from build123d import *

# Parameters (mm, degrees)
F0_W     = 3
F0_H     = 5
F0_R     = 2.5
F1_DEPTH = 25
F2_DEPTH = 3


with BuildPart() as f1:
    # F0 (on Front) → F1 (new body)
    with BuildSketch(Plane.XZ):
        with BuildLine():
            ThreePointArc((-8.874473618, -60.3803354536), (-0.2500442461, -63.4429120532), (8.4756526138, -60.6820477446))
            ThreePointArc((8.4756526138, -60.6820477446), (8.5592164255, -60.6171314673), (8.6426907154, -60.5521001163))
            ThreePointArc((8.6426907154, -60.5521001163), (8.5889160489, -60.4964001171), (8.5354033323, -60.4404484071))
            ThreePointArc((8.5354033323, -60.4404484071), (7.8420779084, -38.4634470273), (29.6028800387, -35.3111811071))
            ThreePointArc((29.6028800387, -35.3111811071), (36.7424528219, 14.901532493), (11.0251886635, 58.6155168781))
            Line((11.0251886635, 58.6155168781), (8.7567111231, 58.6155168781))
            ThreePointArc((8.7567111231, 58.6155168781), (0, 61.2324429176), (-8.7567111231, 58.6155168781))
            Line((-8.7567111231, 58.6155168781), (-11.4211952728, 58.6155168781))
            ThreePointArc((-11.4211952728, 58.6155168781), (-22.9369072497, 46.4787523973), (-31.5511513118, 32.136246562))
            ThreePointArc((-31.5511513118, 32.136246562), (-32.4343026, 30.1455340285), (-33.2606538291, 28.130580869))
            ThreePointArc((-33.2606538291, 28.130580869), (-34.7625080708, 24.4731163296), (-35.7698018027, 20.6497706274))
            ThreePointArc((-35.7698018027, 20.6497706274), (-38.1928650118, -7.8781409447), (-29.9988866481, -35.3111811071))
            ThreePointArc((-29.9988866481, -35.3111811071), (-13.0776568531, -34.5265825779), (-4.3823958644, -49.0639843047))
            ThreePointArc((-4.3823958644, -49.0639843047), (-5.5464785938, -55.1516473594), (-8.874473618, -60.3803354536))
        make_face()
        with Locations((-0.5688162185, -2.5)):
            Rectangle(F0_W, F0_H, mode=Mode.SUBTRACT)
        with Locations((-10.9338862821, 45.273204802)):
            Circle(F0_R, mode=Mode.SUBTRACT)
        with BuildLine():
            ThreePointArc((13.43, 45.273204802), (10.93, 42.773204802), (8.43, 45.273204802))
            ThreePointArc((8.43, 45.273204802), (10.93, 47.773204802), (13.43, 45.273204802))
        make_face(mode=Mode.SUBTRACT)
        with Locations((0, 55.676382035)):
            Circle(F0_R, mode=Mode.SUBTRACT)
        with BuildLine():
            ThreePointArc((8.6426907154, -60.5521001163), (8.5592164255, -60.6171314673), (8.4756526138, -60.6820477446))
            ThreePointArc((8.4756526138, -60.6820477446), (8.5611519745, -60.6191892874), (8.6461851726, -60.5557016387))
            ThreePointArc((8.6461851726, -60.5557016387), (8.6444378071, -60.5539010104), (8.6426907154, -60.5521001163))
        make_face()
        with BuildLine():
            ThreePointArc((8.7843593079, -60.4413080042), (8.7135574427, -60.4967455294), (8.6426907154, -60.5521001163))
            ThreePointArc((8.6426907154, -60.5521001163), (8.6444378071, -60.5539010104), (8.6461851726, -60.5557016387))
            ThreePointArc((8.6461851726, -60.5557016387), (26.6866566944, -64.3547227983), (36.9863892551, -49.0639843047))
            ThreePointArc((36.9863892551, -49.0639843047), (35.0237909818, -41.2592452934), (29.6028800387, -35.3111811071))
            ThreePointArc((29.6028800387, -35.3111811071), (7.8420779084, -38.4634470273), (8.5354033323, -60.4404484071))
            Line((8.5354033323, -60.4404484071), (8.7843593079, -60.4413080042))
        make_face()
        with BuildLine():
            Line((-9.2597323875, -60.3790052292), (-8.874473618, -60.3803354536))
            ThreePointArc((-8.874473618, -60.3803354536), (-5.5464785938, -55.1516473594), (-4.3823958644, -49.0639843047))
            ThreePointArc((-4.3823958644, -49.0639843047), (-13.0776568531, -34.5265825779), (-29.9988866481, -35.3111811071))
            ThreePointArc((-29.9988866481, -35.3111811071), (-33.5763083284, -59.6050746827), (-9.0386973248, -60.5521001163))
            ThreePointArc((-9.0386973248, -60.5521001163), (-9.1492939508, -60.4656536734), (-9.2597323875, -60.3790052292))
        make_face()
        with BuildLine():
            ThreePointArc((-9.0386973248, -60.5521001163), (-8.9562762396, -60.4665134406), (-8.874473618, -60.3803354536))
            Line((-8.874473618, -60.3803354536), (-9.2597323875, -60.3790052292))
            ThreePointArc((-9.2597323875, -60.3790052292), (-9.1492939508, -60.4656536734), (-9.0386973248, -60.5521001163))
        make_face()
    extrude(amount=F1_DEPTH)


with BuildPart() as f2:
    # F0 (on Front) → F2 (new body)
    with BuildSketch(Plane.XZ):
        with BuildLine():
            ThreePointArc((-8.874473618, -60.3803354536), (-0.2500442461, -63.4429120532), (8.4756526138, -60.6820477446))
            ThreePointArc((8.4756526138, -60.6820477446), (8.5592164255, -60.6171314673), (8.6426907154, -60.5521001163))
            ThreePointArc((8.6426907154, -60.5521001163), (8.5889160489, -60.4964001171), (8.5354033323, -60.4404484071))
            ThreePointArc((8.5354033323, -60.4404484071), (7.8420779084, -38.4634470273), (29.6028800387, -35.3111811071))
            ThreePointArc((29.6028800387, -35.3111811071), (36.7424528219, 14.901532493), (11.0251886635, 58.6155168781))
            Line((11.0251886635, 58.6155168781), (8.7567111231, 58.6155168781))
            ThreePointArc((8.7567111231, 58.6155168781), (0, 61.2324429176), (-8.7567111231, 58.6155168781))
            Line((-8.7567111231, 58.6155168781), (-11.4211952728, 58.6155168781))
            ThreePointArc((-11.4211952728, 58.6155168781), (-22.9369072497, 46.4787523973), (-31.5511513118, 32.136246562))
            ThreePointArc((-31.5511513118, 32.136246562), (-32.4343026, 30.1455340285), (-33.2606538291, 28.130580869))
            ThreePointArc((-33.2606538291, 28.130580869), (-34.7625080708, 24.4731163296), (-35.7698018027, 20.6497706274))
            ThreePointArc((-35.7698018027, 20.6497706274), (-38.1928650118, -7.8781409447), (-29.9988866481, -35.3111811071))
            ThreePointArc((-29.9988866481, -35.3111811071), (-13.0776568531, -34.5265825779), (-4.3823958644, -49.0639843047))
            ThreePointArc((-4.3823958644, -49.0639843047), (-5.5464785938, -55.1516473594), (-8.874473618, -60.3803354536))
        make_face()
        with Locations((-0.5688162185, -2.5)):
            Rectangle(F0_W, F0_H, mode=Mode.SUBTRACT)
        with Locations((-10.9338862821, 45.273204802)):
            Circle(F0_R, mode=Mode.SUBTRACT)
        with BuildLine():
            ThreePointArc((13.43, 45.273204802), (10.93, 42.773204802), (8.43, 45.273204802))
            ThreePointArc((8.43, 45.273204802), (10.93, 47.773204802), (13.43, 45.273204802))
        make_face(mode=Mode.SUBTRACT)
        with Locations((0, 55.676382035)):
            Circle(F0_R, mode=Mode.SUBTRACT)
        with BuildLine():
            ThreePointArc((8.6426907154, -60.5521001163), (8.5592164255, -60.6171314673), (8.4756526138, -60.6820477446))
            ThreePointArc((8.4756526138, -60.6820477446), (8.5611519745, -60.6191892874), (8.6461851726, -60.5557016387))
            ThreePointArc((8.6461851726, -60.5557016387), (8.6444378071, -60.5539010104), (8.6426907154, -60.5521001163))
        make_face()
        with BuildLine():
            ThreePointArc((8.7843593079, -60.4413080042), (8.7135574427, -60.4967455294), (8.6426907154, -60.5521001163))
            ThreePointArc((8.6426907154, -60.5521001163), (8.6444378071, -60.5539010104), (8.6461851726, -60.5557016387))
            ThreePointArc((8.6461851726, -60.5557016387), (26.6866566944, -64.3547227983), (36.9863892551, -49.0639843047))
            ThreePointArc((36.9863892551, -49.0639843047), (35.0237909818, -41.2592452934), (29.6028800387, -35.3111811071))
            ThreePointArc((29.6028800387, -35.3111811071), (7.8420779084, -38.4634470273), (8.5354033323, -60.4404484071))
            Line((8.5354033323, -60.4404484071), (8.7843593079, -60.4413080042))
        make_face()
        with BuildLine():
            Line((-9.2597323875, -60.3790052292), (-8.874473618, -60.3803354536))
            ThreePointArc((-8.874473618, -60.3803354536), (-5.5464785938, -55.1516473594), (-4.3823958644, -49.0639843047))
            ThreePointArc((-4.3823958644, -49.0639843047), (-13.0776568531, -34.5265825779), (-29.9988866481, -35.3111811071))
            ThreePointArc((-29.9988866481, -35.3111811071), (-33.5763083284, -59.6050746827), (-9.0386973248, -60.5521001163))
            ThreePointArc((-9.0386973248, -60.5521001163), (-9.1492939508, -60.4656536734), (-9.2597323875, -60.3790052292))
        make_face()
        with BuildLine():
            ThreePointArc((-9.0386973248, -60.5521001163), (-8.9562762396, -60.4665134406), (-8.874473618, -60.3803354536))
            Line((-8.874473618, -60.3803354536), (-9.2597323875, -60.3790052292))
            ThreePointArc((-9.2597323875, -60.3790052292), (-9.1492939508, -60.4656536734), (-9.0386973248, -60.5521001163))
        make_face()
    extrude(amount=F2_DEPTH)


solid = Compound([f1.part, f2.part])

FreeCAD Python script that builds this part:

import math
import FreeCAD as App
import Part
import Sketcher

V = App.Vector

doc = App.newDocument("Part")
params = doc.addObject("Spreadsheet::Sheet", "Params")
for row, (alias, value) in enumerate([
    ("sketch1_diameter", "5 mm"),
    ("sketch1_radius", "16.5 mm"),
    ("sketch1_radius2", "76.8 mm"),
    ("sketch1_width", "3 mm"),
    ("sketch1_height", "5 mm"),
    ("pad1_length", "25 mm"),
    ("sketch2_diameter", "5 mm"),
    ("sketch2_radius", "16.5 mm"),
    ("sketch2_radius2", "76.8 mm"),
    ("sketch2_width", "3 mm"),
    ("sketch2_height", "5 mm"),
    ("pad2_length", "3 mm"),
], start=1):
    params.set(f"A{row}", alias)
    params.set(f"B{row}", "=" + value)
    params.setAlias(f"B{row}", alias)

body = doc.addObject("PartDesign::Body", "Body")

sketch1 = body.newObject("Sketcher::SketchObject", "Sketch")
sketch1.AttachmentSupport = (doc.getObject("XZ_Plane"), [""])
sketch1.MapMode = "FlatFace"
sketch1.addGeometry([
    Part.ArcOfCircle(Part.Circle(V(0, -49.06, 0), V(0, 0, 1), 14.38), math.radians(-128), math.radians(-54)),
    Part.ArcOfCircle(Part.Circle(V(0, -49.06, 0), V(0, 0, 1), 14.38), math.radians(-53.89), math.radians(-53.04)),
    Part.ArcOfCircle(Part.Circle(V(20.49, -49.06, 0), V(0, 0, 1), 16.5), math.radians(-136), math.radians(0)),
    Part.ArcOfCircle(Part.Circle(V(20.49, -49.06, 0), V(0, 0, 1), 16.5), math.radians(0), math.radians(56)),
    Part.ArcOfCircle(Part.Circle(V(-38.6, 0, 0), V(0, 0, 1), 76.8), math.radians(-27), math.radians(50)),
    Part.LineSegment(V(11.03, 58.62, 0), V(8.76, 58.62, 0)),
    Part.ArcOfCircle(Part.Circle(V(0, 45.27, 0), V(0, 0, 1), 15.96), math.radians(57), math.radians(123)),
    Part.LineSegment(V(-8.76, 58.62, 0), V(-11.42, 58.62, 0)),
    Part.ArcOfCircle(Part.Circle(V(38.2, 0, 0), V(0, 0, 1), 76.8), math.radians(130), math.radians(155)),
    Part.ArcOfCircle(Part.Circle(V(38.2, 0, 0), V(0, 0, 1), 76.8), math.radians(155.26), math.radians(158.51)),
    Part.ArcOfCircle(Part.Circle(V(-6.35, 14.94, 0), V(0, 0, 1), 29.97), math.radians(153.89), math.radians(169.02)),
    Part.ArcOfCircle(Part.Circle(V(38.2, 0, 0), V(0, 0, 1), 76.8), math.radians(164), math.radians(207)),
    Part.ArcOfCircle(Part.Circle(V(-20.88, -49.06, 0), V(0, 0, 1), 16.5), math.radians(124), math.radians(316)),
    Part.ArcOfCircle(Part.Circle(V(-20.88, -49.06, 0), V(0, 0, 1), 16.5), math.radians(-44.13), math.radians(-43.3)),
    Part.ArcOfCircle(Part.Circle(V(20.49, -49.06, 0), V(0, 0, 1), 16.5), math.radians(-136.41), math.radians(-135.87)),
    Part.LineSegment(V(8.54, -60.44, 0), V(8.78, -60.44, 0)),
    Part.ArcOfCircle(Part.Circle(V(-38.6, 0, 0), V(0, 0, 1), 76.8), math.radians(-52.04), math.radians(-51.91)),
    Part.LineSegment(V(0.93, -5, 0), V(-2.07, -5, 0)),
    Part.LineSegment(V(-2.07, -5, 0), V(-2.07, 0, 0)),
    Part.LineSegment(V(-2.07, 0, 0), V(0.93, 0, 0)),
    Part.LineSegment(V(0.93, 0, 0), V(0.93, -5, 0)),
    Part.Circle(V(-10.93, 45.27, 0), V(0, 0, 1), 2.5),
    Part.Circle(V(0, 55.68, 0), V(0, 0, 1), 2.5),
    Part.Circle(V(10.93, 45.27, 0), V(0, 0, 1), 2.5),
], False)
sketch1.addConstraint([
    Sketcher.Constraint("Tangent", 0, 2, 1, 1),
    Sketcher.Constraint("Coincident", 1, 2, 2, 1),
    Sketcher.Constraint("Tangent", 2, 2, 3, 1),
    Sketcher.Constraint("Coincident", 3, 2, 4, 1),
    Sketcher.Constraint("Coincident", 4, 2, 5, 1),
    Sketcher.Constraint("Coincident", 5, 2, 6, 1),
    Sketcher.Constraint("Coincident", 6, 2, 7, 1),
    Sketcher.Constraint("Coincident", 7, 2, 8, 1),
    Sketcher.Constraint("Tangent", 8, 2, 9, 1),
    Sketcher.Constraint("Coincident", 9, 2, 10, 1),
    Sketcher.Constraint("Coincident", 10, 2, 11, 1),
    Sketcher.Constraint("Coincident", 11, 2, 12, 1),
    Sketcher.Constraint("Tangent", 12, 2, 13, 1),
    Sketcher.Constraint("Coincident", 13, 2, 0, 1),
    Sketcher.Constraint("Coincident", 14, 1, 15, 1),
    Sketcher.Constraint("Coincident", 15, 2, 16, 2),
    Sketcher.Constraint("Coincident", 16, 1, 14, 2),
    Sketcher.Constraint("Coincident", 17, 2, 18, 1),
    Sketcher.Constraint("Coincident", 18, 2, 19, 1),
    Sketcher.Constraint("Coincident", 19, 2, 20, 1),
    Sketcher.Constraint("Coincident", 20, 2, 17, 1),
    Sketcher.Constraint("Horizontal", 5),
    Sketcher.Constraint("Horizontal", 7),
    Sketcher.Constraint("Horizontal", 17),
    Sketcher.Constraint("Vertical", 18),
    Sketcher.Constraint("Horizontal", 19),
    Sketcher.Constraint("Vertical", 20),
    Sketcher.Constraint("Coincident", 11, 3, 8, 3),
    Sketcher.Constraint("Coincident", 14, 3, 2, 3),
    Sketcher.Constraint("Equal", 0, 1),
    Sketcher.Constraint("Equal", 2, 3),
    Sketcher.Constraint("Equal", 4, 8),
    Sketcher.Constraint("Equal", 8, 9),
    Sketcher.Constraint("Equal", 9, 11),
    Sketcher.Constraint("Equal", 3, 12),
    Sketcher.Constraint("Equal", 12, 13),
    Sketcher.Constraint("Equal", 13, 14),
    Sketcher.Constraint("Equal", 21, 22),
    Sketcher.Constraint("Equal", 22, 23),
    Sketcher.Constraint("Symmetric", 5, 2, 6, 2, -2),
    Sketcher.Constraint("PointOnObject", 0, 3, -2),
    Sketcher.Constraint("PointOnObject", 4, 3, -1),
    Sketcher.Constraint("PointOnObject", 8, 3, -1),
    Sketcher.Constraint("PointOnObject", 22, 3, -2),
    Sketcher.Constraint("PointOnObject", 18, 2, -1),
    Sketcher.Constraint("Horizontal", 1, 3, 2, 3),
    Sketcher.Constraint("Horizontal", 3, 3, 12, 3),
    Sketcher.Constraint("Horizontal", 6, 3, 21, 3),
    Sketcher.Constraint("Horizontal", 21, 3, 23, 3),
    Sketcher.Constraint("Horizontal", 14, 3, 2, 2),
    Sketcher.Constraint("Horizontal", 3, 2, 11, 2),
    Sketcher.Constraint("Horizontal", 12, 2, 16, 1),
    Sketcher.Constraint("Diameter", 21, 5.0),
    Sketcher.Constraint("Radius", 2, 16.5),
    Sketcher.Constraint("Radius", 4, 76.8),
    Sketcher.Constraint("DistanceX", 17, 2, 17, 1, 3.0),
    Sketcher.Constraint("DistanceY", 18, 1, 18, 2, 5.0),
    Sketcher.Constraint("Radius", 0, 14.381102),
    Sketcher.Constraint("DistanceX", -1, 1, 23, 3, 10.93),
    Sketcher.Constraint("Radius", 6, 15.959238),
    Sketcher.Constraint("Radius", 16, 76.79999),
    Sketcher.Constraint("Radius", 10, 29.968292),
    Sketcher.Constraint("DistanceY", 1, 2, -1, 1, 60.555702),
    Sketcher.Constraint("DistanceX", 10, 2, -1, 1, 35.769802),
    Sketcher.Constraint("DistanceY", 12, 2, -1, 1, 60.5521),
    Sketcher.Constraint("DistanceY", 16, 3, 10, 3, 14.9432),
    Sketcher.Constraint("DistanceX", 16, 3, 12, 3, 17.715601),
    Sketcher.Constraint("DistanceX", 6, 2, 4, 2, 19.7819),
    Sketcher.Constraint("DistanceX", 8, 2, 10, 3, 25.2013),
    Sketcher.Constraint("DistanceX", 4, 3, 10, 2, 2.828202),
    Sketcher.Constraint("DistanceX", 12, 3, 12, 2, 11.843699),
    Sketcher.Constraint("DistanceY", 0, 2, 14, 1, 0.241599),
    Sketcher.Constraint("DistanceX", 5, 2, 5, 1, 2.268478),
    Sketcher.Constraint("DistanceX", 7, 2, 7, 1, 2.664484),
    Sketcher.Constraint("DistanceY", 14, 1, -1, 1, 60.440448),
    Sketcher.Constraint("DistanceX", -1, 1, 15, 2, 8.784359),
    Sketcher.Constraint("DistanceX", 16, 3, 21, 3, 27.664111),
    Sketcher.Constraint("DistanceY", 10, 3, 22, 3, 40.733191),
    Sketcher.Constraint("DistanceX", 16, 3, 17, 2, 36.529181),
])
sketch1.setExpression("Constraints[52]", "Params.sketch1_diameter")
sketch1.setExpression("Constraints[53]", "Params.sketch1_radius")
sketch1.setExpression("Constraints[54]", "Params.sketch1_radius2")
sketch1.setExpression("Constraints[55]", "Params.sketch1_width")
sketch1.setExpression("Constraints[56]", "Params.sketch1_height")
pad1 = body.newObject("PartDesign::Pad", "Pad")
pad1.Profile = sketch1
pad1.setExpression("Length", "Params.pad1_length")
body2 = doc.addObject("PartDesign::Body", "Body001")

sketch2 = body2.newObject("Sketcher::SketchObject", "Sketch001")
sketch2.AttachmentSupport = (doc.getObject("XZ_Plane001"), [""])
sketch2.MapMode = "FlatFace"
sketch2.addGeometry([
    Part.ArcOfCircle(Part.Circle(V(0, -49.06, 0), V(0, 0, 1), 14.38), math.radians(-128), math.radians(-54)),
    Part.ArcOfCircle(Part.Circle(V(0, -49.06, 0), V(0, 0, 1), 14.38), math.radians(-53.89), math.radians(-53.04)),
    Part.ArcOfCircle(Part.Circle(V(20.49, -49.06, 0), V(0, 0, 1), 16.5), math.radians(-136), math.radians(0)),
    Part.ArcOfCircle(Part.Circle(V(20.49, -49.06, 0), V(0, 0, 1), 16.5), math.radians(0), math.radians(56)),
    Part.ArcOfCircle(Part.Circle(V(-38.6, 0, 0), V(0, 0, 1), 76.8), math.radians(-27), math.radians(50)),
    Part.LineSegment(V(11.03, 58.62, 0), V(8.76, 58.62, 0)),
    Part.ArcOfCircle(Part.Circle(V(0, 45.27, 0), V(0, 0, 1), 15.96), math.radians(57), math.radians(123)),
    Part.LineSegment(V(-8.76, 58.62, 0), V(-11.42, 58.62, 0)),
    Part.ArcOfCircle(Part.Circle(V(38.2, 0, 0), V(0, 0, 1), 76.8), math.radians(130), math.radians(155)),
    Part.ArcOfCircle(Part.Circle(V(38.2, 0, 0), V(0, 0, 1), 76.8), math.radians(155.26), math.radians(158.51)),
    Part.ArcOfCircle(Part.Circle(V(-6.35, 14.94, 0), V(0, 0, 1), 29.97), math.radians(153.89), math.radians(169.02)),
    Part.ArcOfCircle(Part.Circle(V(38.2, 0, 0), V(0, 0, 1), 76.8), math.radians(164), math.radians(207)),
    Part.ArcOfCircle(Part.Circle(V(-20.88, -49.06, 0), V(0, 0, 1), 16.5), math.radians(124), math.radians(316)),
    Part.ArcOfCircle(Part.Circle(V(-20.88, -49.06, 0), V(0, 0, 1), 16.5), math.radians(-44.13), math.radians(-43.3)),
    Part.ArcOfCircle(Part.Circle(V(20.49, -49.06, 0), V(0, 0, 1), 16.5), math.radians(-136.41), math.radians(-135.87)),
    Part.LineSegment(V(8.54, -60.44, 0), V(8.78, -60.44, 0)),
    Part.ArcOfCircle(Part.Circle(V(-38.6, 0, 0), V(0, 0, 1), 76.8), math.radians(-52.04), math.radians(-51.91)),
    Part.LineSegment(V(0.93, -5, 0), V(-2.07, -5, 0)),
    Part.LineSegment(V(-2.07, -5, 0), V(-2.07, 0, 0)),
    Part.LineSegment(V(-2.07, 0, 0), V(0.93, 0, 0)),
    Part.LineSegment(V(0.93, 0, 0), V(0.93, -5, 0)),
    Part.Circle(V(-10.93, 45.27, 0), V(0, 0, 1), 2.5),
    Part.Circle(V(0, 55.68, 0), V(0, 0, 1), 2.5),
    Part.Circle(V(10.93, 45.27, 0), V(0, 0, 1), 2.5),
], False)
sketch2.addConstraint([
    Sketcher.Constraint("Tangent", 0, 2, 1, 1),
    Sketcher.Constraint("Coincident", 1, 2, 2, 1),
    Sketcher.Constraint("Tangent", 2, 2, 3, 1),
    Sketcher.Constraint("Coincident", 3, 2, 4, 1),
    Sketcher.Constraint("Coincident", 4, 2, 5, 1),
    Sketcher.Constraint("Coincident", 5, 2, 6, 1),
    Sketcher.Constraint("Coincident", 6, 2, 7, 1),
    Sketcher.Constraint("Coincident", 7, 2, 8, 1),
    Sketcher.Constraint("Tangent", 8, 2, 9, 1),
    Sketcher.Constraint("Coincident", 9, 2, 10, 1),
    Sketcher.Constraint("Coincident", 10, 2, 11, 1),
    Sketcher.Constraint("Coincident", 11, 2, 12, 1),
    Sketcher.Constraint("Tangent", 12, 2, 13, 1),
    Sketcher.Constraint("Coincident", 13, 2, 0, 1),
    Sketcher.Constraint("Coincident", 14, 1, 15, 1),
    Sketcher.Constraint("Coincident", 15, 2, 16, 2),
    Sketcher.Constraint("Coincident", 16, 1, 14, 2),
    Sketcher.Constraint("Coincident", 17, 2, 18, 1),
    Sketcher.Constraint("Coincident", 18, 2, 19, 1),
    Sketcher.Constraint("Coincident", 19, 2, 20, 1),
    Sketcher.Constraint("Coincident", 20, 2, 17, 1),
    Sketcher.Constraint("Horizontal", 5),
    Sketcher.Constraint("Horizontal", 7),
    Sketcher.Constraint("Horizontal", 17),
    Sketcher.Constraint("Vertical", 18),
    Sketcher.Constraint("Horizontal", 19),
    Sketcher.Constraint("Vertical", 20),
    Sketcher.Constraint("Coincident", 11, 3, 8, 3),
    Sketcher.Constraint("Coincident", 14, 3, 2, 3),
    Sketcher.Constraint("Equal", 0, 1),
    Sketcher.Constraint("Equal", 2, 3),
    Sketcher.Constraint("Equal", 4, 8),
    Sketcher.Constraint("Equal", 8, 9),
    Sketcher.Constraint("Equal", 9, 11),
    Sketcher.Constraint("Equal", 3, 12),
    Sketcher.Constraint("Equal", 12, 13),
    Sketcher.Constraint("Equal", 13, 14),
    Sketcher.Constraint("Equal", 21, 22),
    Sketcher.Constraint("Equal", 22, 23),
    Sketcher.Constraint("Symmetric", 5, 2, 6, 2, -2),
    Sketcher.Constraint("PointOnObject", 0, 3, -2),
    Sketcher.Constraint("PointOnObject", 4, 3, -1),
    Sketcher.Constraint("PointOnObject", 8, 3, -1),
    Sketcher.Constraint("PointOnObject", 22, 3, -2),
    Sketcher.Constraint("PointOnObject", 18, 2, -1),
    Sketcher.Constraint("Horizontal", 1, 3, 2, 3),
    Sketcher.Constraint("Horizontal", 3, 3, 12, 3),
    Sketcher.Constraint("Horizontal", 6, 3, 21, 3),
    Sketcher.Constraint("Horizontal", 21, 3, 23, 3),
    Sketcher.Constraint("Horizontal", 14, 3, 2, 2),
    Sketcher.Constraint("Horizontal", 3, 2, 11, 2),
    Sketcher.Constraint("Horizontal", 12, 2, 16, 1),
    Sketcher.Constraint("Diameter", 21, 5.0),
    Sketcher.Constraint("Radius", 2, 16.5),
    Sketcher.Constraint("Radius", 4, 76.8),
    Sketcher.Constraint("DistanceX", 17, 2, 17, 1, 3.0),
    Sketcher.Constraint("DistanceY", 18, 1, 18, 2, 5.0),
    Sketcher.Constraint("Radius", 0, 14.381102),
    Sketcher.Constraint("DistanceX", -1, 1, 23, 3, 10.93),
    Sketcher.Constraint("Radius", 6, 15.959238),
    Sketcher.Constraint("Radius", 16, 76.79999),
    Sketcher.Constraint("Radius", 10, 29.968292),
    Sketcher.Constraint("DistanceY", 1, 2, -1, 1, 60.555702),
    Sketcher.Constraint("DistanceX", 10, 2, -1, 1, 35.769802),
    Sketcher.Constraint("DistanceY", 12, 2, -1, 1, 60.5521),
    Sketcher.Constraint("DistanceY", 16, 3, 10, 3, 14.9432),
    Sketcher.Constraint("DistanceX", 16, 3, 12, 3, 17.715601),
    Sketcher.Constraint("DistanceX", 6, 2, 4, 2, 19.7819),
    Sketcher.Constraint("DistanceX", 8, 2, 10, 3, 25.2013),
    Sketcher.Constraint("DistanceX", 4, 3, 10, 2, 2.828202),
    Sketcher.Constraint("DistanceX", 12, 3, 12, 2, 11.843699),
    Sketcher.Constraint("DistanceY", 0, 2, 14, 1, 0.241599),
    Sketcher.Constraint("DistanceX", 5, 2, 5, 1, 2.268478),
    Sketcher.Constraint("DistanceX", 7, 2, 7, 1, 2.664484),
    Sketcher.Constraint("DistanceY", 14, 1, -1, 1, 60.440448),
    Sketcher.Constraint("DistanceX", -1, 1, 15, 2, 8.784359),
    Sketcher.Constraint("DistanceX", 16, 3, 21, 3, 27.664111),
    Sketcher.Constraint("DistanceY", 10, 3, 22, 3, 40.733191),
    Sketcher.Constraint("DistanceX", 16, 3, 17, 2, 36.529181),
])
sketch2.setExpression("Constraints[52]", "Params.sketch2_diameter")
sketch2.setExpression("Constraints[53]", "Params.sketch2_radius")
sketch2.setExpression("Constraints[54]", "Params.sketch2_radius2")
sketch2.setExpression("Constraints[55]", "Params.sketch2_width")
sketch2.setExpression("Constraints[56]", "Params.sketch2_height")
pad2 = body2.newObject("PartDesign::Pad", "Pad001")
pad2.Profile = sketch2
pad2.setExpression("Length", "Params.pad2_length")

doc.recompute()
